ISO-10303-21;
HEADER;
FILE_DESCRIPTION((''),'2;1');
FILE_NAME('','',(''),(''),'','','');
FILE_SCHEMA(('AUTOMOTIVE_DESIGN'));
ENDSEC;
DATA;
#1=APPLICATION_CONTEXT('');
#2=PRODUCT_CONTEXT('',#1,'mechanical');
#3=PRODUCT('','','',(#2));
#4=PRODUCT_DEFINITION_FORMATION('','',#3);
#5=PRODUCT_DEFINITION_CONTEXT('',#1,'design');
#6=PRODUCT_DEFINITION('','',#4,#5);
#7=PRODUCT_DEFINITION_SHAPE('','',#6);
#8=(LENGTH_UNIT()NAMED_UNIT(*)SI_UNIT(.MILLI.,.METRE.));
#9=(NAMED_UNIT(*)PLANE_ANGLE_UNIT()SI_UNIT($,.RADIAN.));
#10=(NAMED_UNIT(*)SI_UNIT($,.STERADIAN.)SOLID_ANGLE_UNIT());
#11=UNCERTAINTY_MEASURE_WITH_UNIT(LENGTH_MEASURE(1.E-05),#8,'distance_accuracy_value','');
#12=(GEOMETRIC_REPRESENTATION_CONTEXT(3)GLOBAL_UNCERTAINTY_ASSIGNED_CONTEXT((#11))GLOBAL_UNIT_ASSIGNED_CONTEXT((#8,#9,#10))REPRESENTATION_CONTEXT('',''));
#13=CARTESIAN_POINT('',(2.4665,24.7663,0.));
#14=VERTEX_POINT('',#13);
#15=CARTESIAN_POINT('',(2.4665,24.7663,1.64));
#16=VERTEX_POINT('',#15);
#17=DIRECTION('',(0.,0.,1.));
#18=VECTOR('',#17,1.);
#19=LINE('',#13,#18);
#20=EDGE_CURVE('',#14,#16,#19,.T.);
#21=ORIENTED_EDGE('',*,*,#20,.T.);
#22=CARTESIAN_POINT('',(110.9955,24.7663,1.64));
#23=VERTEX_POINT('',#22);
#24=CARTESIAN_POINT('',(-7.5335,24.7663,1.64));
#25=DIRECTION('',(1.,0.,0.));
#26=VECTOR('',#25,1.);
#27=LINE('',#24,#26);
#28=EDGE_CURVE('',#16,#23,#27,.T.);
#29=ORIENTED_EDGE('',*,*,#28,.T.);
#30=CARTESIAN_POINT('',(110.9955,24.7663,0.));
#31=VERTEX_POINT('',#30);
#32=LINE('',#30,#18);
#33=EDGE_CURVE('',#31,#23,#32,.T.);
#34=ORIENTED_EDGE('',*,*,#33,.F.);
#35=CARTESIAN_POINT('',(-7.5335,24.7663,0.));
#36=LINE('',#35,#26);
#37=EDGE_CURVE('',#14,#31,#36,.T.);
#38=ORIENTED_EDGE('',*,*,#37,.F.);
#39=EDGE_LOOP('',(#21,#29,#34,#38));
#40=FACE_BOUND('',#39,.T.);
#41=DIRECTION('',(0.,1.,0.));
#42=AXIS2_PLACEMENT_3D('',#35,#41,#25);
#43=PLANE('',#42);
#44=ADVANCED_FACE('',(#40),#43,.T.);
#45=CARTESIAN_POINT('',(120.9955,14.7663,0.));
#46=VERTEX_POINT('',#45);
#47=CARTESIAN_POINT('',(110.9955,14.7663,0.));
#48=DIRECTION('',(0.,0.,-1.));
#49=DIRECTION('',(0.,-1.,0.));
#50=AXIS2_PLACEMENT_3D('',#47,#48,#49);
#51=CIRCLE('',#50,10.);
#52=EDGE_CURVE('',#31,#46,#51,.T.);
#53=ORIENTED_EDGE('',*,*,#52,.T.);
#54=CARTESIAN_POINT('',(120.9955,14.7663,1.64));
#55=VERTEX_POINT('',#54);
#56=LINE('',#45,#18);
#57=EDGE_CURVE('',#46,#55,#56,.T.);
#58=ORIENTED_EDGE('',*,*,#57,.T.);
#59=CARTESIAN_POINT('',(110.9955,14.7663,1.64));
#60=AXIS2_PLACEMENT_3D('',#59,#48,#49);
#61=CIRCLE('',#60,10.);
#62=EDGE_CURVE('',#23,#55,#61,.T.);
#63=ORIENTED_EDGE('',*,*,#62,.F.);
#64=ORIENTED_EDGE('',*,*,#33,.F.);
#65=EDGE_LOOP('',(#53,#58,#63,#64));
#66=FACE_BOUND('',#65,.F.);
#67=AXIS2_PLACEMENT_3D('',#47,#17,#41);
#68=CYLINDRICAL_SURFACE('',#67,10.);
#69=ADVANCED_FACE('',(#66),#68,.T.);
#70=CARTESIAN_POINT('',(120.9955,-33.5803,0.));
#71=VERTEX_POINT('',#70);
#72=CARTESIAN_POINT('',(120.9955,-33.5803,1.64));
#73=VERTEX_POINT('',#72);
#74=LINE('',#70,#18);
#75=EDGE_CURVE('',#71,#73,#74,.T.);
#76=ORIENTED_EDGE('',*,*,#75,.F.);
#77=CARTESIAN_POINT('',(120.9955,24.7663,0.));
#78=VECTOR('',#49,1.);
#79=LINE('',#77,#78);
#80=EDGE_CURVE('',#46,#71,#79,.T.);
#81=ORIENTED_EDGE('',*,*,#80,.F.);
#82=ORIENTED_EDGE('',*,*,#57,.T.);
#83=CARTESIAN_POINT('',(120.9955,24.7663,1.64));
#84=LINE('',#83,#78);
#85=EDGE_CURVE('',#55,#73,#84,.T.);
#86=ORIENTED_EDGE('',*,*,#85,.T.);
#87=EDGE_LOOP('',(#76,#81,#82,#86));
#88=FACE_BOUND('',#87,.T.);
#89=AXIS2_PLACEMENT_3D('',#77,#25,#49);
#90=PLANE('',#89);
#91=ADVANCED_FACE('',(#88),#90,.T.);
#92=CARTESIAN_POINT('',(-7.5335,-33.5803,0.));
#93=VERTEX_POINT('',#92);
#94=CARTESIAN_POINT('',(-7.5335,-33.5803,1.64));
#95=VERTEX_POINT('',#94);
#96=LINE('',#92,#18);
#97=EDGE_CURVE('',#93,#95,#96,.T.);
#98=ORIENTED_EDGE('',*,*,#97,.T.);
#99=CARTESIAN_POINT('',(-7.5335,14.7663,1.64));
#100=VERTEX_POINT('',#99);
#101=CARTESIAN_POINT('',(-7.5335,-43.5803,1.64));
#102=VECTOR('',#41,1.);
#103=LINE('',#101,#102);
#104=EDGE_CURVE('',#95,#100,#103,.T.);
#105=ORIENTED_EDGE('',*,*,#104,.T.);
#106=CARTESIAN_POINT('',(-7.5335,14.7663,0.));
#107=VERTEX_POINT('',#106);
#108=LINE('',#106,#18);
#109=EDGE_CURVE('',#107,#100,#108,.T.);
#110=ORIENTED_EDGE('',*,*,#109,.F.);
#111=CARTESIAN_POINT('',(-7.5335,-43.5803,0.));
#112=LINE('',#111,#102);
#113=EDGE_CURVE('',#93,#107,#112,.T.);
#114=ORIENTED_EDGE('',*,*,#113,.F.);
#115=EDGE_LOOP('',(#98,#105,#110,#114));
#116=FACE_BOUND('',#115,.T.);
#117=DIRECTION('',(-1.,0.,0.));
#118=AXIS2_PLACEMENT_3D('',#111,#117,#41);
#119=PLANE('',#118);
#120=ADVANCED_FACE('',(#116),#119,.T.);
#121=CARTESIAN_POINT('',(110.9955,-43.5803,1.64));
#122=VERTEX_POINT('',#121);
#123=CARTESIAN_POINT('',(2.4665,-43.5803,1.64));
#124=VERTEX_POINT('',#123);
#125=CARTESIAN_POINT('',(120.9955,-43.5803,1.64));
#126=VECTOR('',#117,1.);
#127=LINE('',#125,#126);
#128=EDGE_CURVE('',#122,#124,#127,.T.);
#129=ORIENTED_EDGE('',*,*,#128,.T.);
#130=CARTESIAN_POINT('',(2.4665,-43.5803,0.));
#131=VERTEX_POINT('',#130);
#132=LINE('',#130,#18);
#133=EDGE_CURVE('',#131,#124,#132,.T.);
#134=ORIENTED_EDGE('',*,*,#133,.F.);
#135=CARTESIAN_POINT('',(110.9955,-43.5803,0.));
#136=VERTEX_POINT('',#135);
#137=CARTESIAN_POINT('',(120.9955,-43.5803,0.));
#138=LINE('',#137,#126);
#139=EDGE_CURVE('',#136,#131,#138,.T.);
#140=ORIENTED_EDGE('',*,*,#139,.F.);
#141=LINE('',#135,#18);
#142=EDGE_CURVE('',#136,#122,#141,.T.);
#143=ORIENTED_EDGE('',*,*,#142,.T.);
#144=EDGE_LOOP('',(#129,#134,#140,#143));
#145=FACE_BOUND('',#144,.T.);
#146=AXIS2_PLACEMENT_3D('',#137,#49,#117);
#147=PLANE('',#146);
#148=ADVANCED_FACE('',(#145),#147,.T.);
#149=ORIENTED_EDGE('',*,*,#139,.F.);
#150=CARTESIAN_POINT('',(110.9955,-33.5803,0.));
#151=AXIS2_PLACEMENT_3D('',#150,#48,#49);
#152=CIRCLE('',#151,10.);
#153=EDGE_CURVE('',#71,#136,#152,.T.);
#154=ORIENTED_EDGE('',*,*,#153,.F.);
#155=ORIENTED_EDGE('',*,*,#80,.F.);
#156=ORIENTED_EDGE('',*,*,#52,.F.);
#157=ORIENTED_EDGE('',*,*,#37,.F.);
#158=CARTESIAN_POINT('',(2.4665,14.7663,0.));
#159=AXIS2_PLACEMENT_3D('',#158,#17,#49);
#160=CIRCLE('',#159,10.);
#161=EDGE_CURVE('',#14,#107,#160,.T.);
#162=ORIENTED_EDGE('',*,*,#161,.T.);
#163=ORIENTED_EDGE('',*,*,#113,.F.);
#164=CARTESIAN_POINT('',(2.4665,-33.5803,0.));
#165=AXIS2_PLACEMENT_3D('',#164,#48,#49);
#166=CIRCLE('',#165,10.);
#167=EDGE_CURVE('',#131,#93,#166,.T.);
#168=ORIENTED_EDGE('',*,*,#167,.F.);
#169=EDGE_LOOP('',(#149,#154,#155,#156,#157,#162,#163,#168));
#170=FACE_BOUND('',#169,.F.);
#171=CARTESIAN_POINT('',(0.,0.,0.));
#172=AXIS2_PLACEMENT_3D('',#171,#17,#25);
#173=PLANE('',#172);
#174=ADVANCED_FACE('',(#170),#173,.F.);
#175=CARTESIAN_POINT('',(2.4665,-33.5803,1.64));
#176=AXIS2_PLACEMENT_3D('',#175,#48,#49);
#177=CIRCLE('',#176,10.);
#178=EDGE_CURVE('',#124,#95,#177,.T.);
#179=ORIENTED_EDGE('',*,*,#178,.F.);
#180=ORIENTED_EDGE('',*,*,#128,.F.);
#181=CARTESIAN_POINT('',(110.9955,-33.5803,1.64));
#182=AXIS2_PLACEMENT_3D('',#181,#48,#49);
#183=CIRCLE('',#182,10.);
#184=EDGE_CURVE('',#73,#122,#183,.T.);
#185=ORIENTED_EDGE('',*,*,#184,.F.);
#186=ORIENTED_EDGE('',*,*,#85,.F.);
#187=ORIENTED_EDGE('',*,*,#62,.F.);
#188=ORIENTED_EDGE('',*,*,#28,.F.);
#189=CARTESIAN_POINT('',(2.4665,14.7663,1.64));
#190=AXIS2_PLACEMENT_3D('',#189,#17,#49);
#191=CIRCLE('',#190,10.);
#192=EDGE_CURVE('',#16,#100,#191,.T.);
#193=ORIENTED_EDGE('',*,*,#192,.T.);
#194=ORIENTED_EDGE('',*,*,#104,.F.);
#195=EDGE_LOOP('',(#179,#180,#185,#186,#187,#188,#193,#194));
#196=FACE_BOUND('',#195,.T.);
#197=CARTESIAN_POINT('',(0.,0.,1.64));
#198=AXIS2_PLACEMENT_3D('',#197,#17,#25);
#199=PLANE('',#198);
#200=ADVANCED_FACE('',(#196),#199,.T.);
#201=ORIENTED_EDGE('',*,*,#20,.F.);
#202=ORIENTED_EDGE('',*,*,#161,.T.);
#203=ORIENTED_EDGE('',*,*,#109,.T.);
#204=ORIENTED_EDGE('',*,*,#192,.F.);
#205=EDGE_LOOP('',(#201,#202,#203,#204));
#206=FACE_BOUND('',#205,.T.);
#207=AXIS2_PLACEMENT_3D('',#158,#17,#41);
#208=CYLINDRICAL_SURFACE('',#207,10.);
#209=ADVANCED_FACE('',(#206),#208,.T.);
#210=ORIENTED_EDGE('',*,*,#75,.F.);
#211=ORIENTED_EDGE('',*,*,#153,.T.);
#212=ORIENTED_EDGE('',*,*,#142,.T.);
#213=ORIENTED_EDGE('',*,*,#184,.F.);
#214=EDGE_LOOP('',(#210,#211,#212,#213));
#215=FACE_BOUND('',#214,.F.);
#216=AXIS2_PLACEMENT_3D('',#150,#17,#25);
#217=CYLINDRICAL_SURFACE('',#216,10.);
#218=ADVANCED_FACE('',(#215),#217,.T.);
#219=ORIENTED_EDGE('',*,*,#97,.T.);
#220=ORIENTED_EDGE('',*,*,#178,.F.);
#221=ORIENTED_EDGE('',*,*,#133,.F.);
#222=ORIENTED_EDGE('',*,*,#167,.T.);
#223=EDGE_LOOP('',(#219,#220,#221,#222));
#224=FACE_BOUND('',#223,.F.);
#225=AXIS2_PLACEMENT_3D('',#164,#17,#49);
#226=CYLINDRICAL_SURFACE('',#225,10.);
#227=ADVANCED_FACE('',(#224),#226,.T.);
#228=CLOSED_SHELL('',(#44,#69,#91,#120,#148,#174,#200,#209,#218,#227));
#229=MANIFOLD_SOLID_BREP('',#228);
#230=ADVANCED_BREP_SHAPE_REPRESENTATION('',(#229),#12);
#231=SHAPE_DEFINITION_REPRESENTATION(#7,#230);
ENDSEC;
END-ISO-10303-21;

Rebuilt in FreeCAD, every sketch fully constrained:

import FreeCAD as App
import Part
import Sketcher
from FreeCAD import Vector
Q = App.Units.Quantity


def edges_at(feature, points):
    """Names of the edges that pass closest to the given points."""
    edges = feature.Shape.Edges
    near = lambda p: min(range(len(edges)), key=lambda i: edges[i].distToShape(Part.Vertex(*p))[0])
    return sorted({f"Edge{near(p) + 1}" for p in points})


def add_polygon(sketch, points):
    """Adds a closed chain of lines whose ends are joined by coincident constraints."""
    first, n = sketch.GeometryCount, len(points)
    for a, b in zip(points, points[1:] + points[:1]):
        sketch.addGeometry(Part.LineSegment(App.Vector(*a, 0), App.Vector(*b, 0)), False)
    for i in range(n):
        sketch.addConstraint(Sketcher.Constraint("Coincident", first + i, 2, first + (i + 1) % n, 1))

doc = App.newDocument("Part")
body = doc.addObject("PartDesign::Body", "Body")

sketch1 = body.newObject("Sketcher::SketchObject", "Sketch")
sketch1.AttachmentSupport = (doc.getObject("XY_Plane"), [""])
sketch1.MapMode = "FlatFace"
add_polygon(sketch1, [(121, 25), (-8, 25), (-8, -44), (121, -44)])
sketch1.addConstraint([
    Sketcher.Constraint("Horizontal", 0),
    Sketcher.Constraint("Vertical", 1),
    Sketcher.Constraint("Horizontal", 2),
    Sketcher.Constraint("Vertical", 3),
    Sketcher.Constraint("DistanceX", 0, 2, 0, 1, Q("128.529 mm")),
    Sketcher.Constraint("DistanceY", 1, 2, 1, 1, Q("68.3466 mm")),
    Sketcher.Constraint("DistanceX", 0, 2, -1, 1, Q("7.5335 mm")),
    Sketcher.Constraint("DistanceY", -1, 1, 0, 2, Q("24.7663 mm")),
])
pad1 = body.newObject("PartDesign::Pad", "Pad")
pad1.Profile = sketch1
pad1.Length = 1.64
doc.recompute()

fillet = body.newObject("PartDesign::Fillet", "Fillet")
fillet.Base = (pad1, edges_at(pad1, [
    (120.996, 24.766, 0.82),
    (120.996, -43.58, 0.82),
    (-7.534, 24.766, 0.82),
    (-7.534, -43.58, 0.82),
]))
fillet.Radius = 10

doc.recompute()
